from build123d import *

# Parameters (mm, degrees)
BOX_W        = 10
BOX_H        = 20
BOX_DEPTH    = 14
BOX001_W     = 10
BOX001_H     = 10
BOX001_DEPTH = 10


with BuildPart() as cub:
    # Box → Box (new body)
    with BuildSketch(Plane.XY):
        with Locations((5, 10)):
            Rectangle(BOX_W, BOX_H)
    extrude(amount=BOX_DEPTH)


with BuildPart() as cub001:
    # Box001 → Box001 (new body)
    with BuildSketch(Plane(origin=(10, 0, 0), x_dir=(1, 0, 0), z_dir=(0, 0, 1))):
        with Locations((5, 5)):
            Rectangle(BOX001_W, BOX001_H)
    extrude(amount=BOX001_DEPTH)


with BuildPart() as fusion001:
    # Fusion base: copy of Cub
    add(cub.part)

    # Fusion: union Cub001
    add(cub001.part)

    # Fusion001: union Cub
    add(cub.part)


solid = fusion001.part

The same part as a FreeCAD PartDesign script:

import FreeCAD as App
import Part
import Sketcher

V = App.Vector
Q = App.Units.Quantity

doc = App.newDocument("Part")
body = doc.addObject("PartDesign::Body", "Body")

sketch1 = body.newObject("Sketcher::SketchObject", "Sketch")
sketch1.AttachmentSupport = (doc.getObject("XY_Plane"), [""])
sketch1.MapMode = "FlatFace"
sketch1.addGeometry([
    Part.LineSegment(V(0, 20, 0), V(0, 0, 0)),
    Part.LineSegment(V(0, 0, 0), V(10, 0, 0)),
    Part.LineSegment(V(10, 0, 0), V(10, 20, 0)),
    Part.LineSegment(V(10, 20, 0), V(0, 20, 0)),
], False)
sketch1.addConstraint([
    Sketcher.Constraint("Coincident", 0, 2, 1, 1),
    Sketcher.Constraint("Coincident", 1, 2, 2, 1),
    Sketcher.Constraint("Coincident", 2, 2, 3, 1),
    Sketcher.Constraint("Coincident", 3, 2, 0, 1),
    Sketcher.Constraint("Vertical", 0),
    Sketcher.Constraint("Horizontal", 1),
    Sketcher.Constraint("Vertical", 2),
    Sketcher.Constraint("Horizontal", 3),
    Sketcher.Constraint("Coincident", 0, 2, -1, 1),
    Sketcher.Constraint("DistanceX", 1, 1, 1, 2, Q("10 mm")),
    Sketcher.Constraint("DistanceY", 0, 2, 0, 1, Q("20 mm")),
])
pad1 = body.newObject("PartDesign::Pad", "Pad")
pad1.Profile = sketch1
pad1.Length = 14
body2 = doc.addObject("PartDesign::Body", "Body001")

sketch2 = body2.newObject("Sketcher::SketchObject", "Sketch001")
sketch2.AttachmentSupport = (doc.getObject("XY_Plane001"), [""])
sketch2.MapMode = "FlatFace"
sketch2.addGeometry([
    Part.LineSegment(V(10, 10, 0), V(10, 0, 0)),
    Part.LineSegment(V(10, 0, 0), V(20, 0, 0)),
    Part.LineSegment(V(20, 0, 0), V(20, 10, 0)),
    Part.LineSegment(V(20, 10, 0), V(10, 10, 0)),
], False)
sketch2.addConstraint([
    Sketcher.Constraint("Coincident", 0, 2, 1, 1),
    Sketcher.Constraint("Coincident", 1, 2, 2, 1),
    Sketcher.Constraint("Coincident", 2, 2, 3, 1),
    Sketcher.Constraint("Coincident", 3, 2, 0, 1),
    Sketcher.Constraint("Vertical", 0),
    Sketcher.Constraint("Horizontal", 1),
    Sketcher.Constraint("Vertical", 2),
    Sketcher.Constraint("Horizontal", 3),
    Sketcher.Constraint("PointOnObject", 0, 2, -1),
    Sketcher.Constraint("Equal", 3, 0),
    Sketcher.Constraint("DistanceX", 1, 1, 1, 2, Q("10 mm")),
    Sketcher.Constraint("DistanceX", -1, 1, 0, 2, Q("10 mm")),
])
pad2 = body2.newObject("PartDesign::Pad", "Pad001")
pad2.Profile = sketch2
pad2.Length = 10
body3 = doc.addObject("PartDesign::Body", "Body002")
doc.recompute()

body3.BaseFeature = body
doc.recompute()

boolean = body3.newObject("PartDesign::Boolean", "Boolean")
boolean.Type = "Fuse"
boolean.addObjects([body2])
doc.recompute()

boolean2 = body3.newObject("PartDesign::Boolean", "Boolean001")
boolean2.Type = "Fuse"
boolean2.addObjects([body])

doc.recompute()
